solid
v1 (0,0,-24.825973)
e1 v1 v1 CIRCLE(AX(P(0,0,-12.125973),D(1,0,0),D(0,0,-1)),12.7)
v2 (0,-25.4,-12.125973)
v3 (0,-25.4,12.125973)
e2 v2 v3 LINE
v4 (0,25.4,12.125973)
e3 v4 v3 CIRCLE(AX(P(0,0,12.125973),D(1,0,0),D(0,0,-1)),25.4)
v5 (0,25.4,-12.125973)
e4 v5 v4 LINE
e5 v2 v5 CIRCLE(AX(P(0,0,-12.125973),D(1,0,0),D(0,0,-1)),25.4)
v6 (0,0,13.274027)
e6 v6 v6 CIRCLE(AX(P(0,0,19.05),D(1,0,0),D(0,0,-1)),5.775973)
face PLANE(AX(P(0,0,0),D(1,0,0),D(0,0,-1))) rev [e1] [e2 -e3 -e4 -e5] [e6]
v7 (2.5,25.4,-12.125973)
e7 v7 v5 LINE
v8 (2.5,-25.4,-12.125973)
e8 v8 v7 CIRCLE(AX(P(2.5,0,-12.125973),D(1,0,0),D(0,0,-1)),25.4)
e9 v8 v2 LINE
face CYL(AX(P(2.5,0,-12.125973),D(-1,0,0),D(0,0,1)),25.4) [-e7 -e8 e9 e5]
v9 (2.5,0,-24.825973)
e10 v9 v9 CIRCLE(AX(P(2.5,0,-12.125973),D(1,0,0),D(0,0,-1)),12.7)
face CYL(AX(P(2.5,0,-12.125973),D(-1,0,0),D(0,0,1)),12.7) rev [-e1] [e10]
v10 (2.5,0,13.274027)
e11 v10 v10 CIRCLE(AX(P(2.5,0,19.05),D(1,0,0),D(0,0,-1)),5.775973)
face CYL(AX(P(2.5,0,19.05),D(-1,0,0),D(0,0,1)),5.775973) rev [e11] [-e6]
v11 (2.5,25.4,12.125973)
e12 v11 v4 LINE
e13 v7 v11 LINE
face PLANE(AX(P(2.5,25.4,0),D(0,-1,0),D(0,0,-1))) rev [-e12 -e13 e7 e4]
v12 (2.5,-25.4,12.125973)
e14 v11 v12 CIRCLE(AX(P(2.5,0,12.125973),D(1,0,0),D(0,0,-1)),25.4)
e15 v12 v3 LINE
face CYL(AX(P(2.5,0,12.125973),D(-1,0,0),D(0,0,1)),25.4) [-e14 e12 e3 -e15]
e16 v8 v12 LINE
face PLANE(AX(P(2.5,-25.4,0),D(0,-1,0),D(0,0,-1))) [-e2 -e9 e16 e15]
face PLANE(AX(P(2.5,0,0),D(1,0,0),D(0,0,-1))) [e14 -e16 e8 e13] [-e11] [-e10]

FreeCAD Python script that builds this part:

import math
import FreeCAD as App
import Part
import Sketcher
Q = App.Units.Quantity

doc = App.newDocument("Part")
body = doc.addObject("PartDesign::Body", "Body")

# Sketch on YZ plane
sketch1 = body.newObject("Sketcher::SketchObject", "Sketch")
sketch1.AttachmentSupport = (doc.getObject("YZ_Plane"), [""])
sketch1.MapMode = "FlatFace"
sketch1.addGeometry(Part.LineSegment(App.Vector(-25.4, 12.125973, 0), App.Vector(-25.4, -12.125973, 0)), False)
sketch1.addGeometry(Part.ArcOfCircle(Part.Circle(App.Vector(0, -12.125973, 0), App.Vector(0, 0, 1), 25.4), math.radians(180), math.radians(360)), False)
sketch1.addGeometry(Part.LineSegment(App.Vector(25.4, -12.125973, 0), App.Vector(25.4, 12.125973, 0)), False)
sketch1.addGeometry(Part.ArcOfCircle(Part.Circle(App.Vector(0, 12.125973, 0), App.Vector(0, 0, 1), 25.4), math.radians(0), math.radians(180)), False)
sketch1.addGeometry(Part.Circle(App.Vector(0, -12.125973, 0), App.Vector(0, 0, 1), 12.7), False)
sketch1.addGeometry(Part.Circle(App.Vector(0, 19.05, 0), App.Vector(0, 0, 1), 5.775973), False)
sketch1.addConstraint(Sketcher.Constraint("Tangent", 0, 2, 1, 1))
sketch1.addConstraint(Sketcher.Constraint("Tangent", 1, 2, 2, 1))
sketch1.addConstraint(Sketcher.Constraint("Tangent", 2, 2, 3, 1))
sketch1.addConstraint(Sketcher.Constraint("Tangent", 3, 2, 0, 1))
sketch1.addConstraint(Sketcher.Constraint("Vertical", 0))
sketch1.addConstraint(Sketcher.Constraint("Vertical", 2))
sketch1.addConstraint(Sketcher.Constraint("Coincident", 4, 3, 1, 3))
sketch1.addConstraint(Sketcher.Constraint("Symmetric", 1, 3, 3, 3, -1, 1))
sketch1.addConstraint(Sketcher.Constraint("PointOnObject", 5, 3, -2))
sketch1.addConstraint(Sketcher.Constraint("Diameter", 4, Q("1 in")))
sketch1.addConstraint(Sketcher.Constraint("Radius", 1, Q("1 in")))
sketch1.addConstraint(Sketcher.Constraint("DistanceY", -1, 1, 5, 3, Q("0.75 in")))
sketch1.addConstraint(Sketcher.Constraint("Diameter", 5, Q("11.551945 mm")))
sketch1.addConstraint(Sketcher.Constraint("DistanceY", 0, 2, 0, 1, Q("24.251945 mm")))
pad1 = body.newObject("PartDesign::Pad", "Pad")
pad1.Profile = sketch1
pad1.Length = 2.5

doc.recompute()
